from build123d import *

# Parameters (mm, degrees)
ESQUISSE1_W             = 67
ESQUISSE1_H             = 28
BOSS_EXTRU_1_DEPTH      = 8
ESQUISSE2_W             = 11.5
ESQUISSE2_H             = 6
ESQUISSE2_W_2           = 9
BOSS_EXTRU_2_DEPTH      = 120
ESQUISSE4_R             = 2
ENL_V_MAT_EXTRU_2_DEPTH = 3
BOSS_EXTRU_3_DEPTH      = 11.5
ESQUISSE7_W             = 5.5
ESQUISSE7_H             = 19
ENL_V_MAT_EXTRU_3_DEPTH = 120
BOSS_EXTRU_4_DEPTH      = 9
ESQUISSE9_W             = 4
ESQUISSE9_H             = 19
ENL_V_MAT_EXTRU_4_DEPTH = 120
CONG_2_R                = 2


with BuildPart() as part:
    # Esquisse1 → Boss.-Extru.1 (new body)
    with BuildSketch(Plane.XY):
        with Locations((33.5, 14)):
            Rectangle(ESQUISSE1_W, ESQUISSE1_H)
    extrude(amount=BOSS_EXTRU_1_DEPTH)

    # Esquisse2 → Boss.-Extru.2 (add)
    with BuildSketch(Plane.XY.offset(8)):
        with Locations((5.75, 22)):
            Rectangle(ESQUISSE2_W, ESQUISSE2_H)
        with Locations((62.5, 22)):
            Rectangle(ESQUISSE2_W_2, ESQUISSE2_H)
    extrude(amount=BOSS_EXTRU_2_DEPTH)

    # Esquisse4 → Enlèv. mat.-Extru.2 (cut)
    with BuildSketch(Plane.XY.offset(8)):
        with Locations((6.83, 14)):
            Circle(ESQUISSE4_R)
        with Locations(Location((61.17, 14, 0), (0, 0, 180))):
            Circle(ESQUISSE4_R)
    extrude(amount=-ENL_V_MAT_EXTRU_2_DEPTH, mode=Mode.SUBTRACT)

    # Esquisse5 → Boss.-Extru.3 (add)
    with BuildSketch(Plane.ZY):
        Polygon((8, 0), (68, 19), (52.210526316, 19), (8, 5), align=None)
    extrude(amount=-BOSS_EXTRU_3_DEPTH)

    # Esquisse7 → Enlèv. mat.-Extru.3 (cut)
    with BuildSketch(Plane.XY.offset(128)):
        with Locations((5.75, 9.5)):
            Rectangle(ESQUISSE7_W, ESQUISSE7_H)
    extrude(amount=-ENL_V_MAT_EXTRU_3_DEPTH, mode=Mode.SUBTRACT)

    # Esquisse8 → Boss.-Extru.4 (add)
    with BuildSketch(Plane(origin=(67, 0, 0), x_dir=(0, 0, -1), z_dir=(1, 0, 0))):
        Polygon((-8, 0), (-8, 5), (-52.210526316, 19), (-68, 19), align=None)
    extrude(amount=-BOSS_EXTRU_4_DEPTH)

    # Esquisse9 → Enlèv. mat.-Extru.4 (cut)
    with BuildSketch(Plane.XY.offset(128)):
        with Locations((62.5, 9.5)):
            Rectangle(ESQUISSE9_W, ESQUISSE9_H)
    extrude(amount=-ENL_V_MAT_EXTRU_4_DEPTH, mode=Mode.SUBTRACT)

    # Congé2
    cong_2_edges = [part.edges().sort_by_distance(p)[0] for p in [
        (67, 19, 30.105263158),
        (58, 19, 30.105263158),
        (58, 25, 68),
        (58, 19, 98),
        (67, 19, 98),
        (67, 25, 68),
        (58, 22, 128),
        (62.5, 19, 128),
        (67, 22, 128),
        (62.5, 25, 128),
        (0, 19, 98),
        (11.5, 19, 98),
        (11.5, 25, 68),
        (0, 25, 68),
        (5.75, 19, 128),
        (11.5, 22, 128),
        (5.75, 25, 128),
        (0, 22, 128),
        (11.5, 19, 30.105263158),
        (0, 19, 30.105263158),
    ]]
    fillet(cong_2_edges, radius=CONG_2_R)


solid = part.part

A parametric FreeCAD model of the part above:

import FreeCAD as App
import Part
import Sketcher


def edges_at(feature, points):
    """Names of the edges that pass closest to the given points."""
    edges = feature.Shape.Edges
    near = lambda p: min(range(len(edges)), key=lambda i: edges[i].distToShape(Part.Vertex(*p))[0])
    return sorted({f"Edge{near(p) + 1}" for p in points})

doc = App.newDocument("Part")
body = doc.addObject("PartDesign::Body", "Body")

# Sketch on XY plane
sketch1 = body.newObject("Sketcher::SketchObject", "Sketch")
sketch1.AttachmentSupport = (doc.getObject("XY_Plane"), [""])
sketch1.MapMode = "FlatFace"
sketch1.addGeometry([
    Part.LineSegment(App.Vector(0, 28, 0), App.Vector(0, 0, 0)),
    Part.LineSegment(App.Vector(0, 0, 0), App.Vector(67, 0, 0)),
    Part.LineSegment(App.Vector(67, 0, 0), App.Vector(67, 28, 0)),
    Part.LineSegment(App.Vector(67, 28, 0), App.Vector(0, 28, 0)),
], False)
sketch1.addConstraint([
    Sketcher.Constraint("Coincident", 0, 2, 1, 1),
    Sketcher.Constraint("Coincident", 1, 2, 2, 1),
    Sketcher.Constraint("Coincident", 2, 2, 3, 1),
    Sketcher.Constraint("Coincident", 3, 2, 0, 1),
    Sketcher.Constraint("Vertical", 0),
    Sketcher.Constraint("Horizontal", 1),
    Sketcher.Constraint("Vertical", 2),
    Sketcher.Constraint("Horizontal", 3),
    Sketcher.Constraint("Coincident", 0, 2, -1, 1),
    Sketcher.Constraint("DistanceX", 1, 1, 1, 2, 67.0),
    Sketcher.Constraint("DistanceY", 0, 2, 0, 1, 28.0),
])
pad1 = body.newObject("PartDesign::Pad", "Pad")
pad1.Profile = sketch1
pad1.Length = 8

# Sketch on XY plane
sketch2 = body.newObject("Sketcher::SketchObject", "Sketch001")
sketch2.AttachmentSupport = (doc.getObject("XY_Plane"), [""])
sketch2.MapMode = "FlatFace"
sketch2.AttachmentOffset = App.Placement(App.Vector(0, 0, 8), App.Rotation())
sketch2.addGeometry([
    Part.LineSegment(App.Vector(0, 25, 0), App.Vector(0, 19, 0)),  # 0
    Part.LineSegment(App.Vector(0, 19, 0), App.Vector(12, 19, 0)),  # 1
    Part.LineSegment(App.Vector(12, 19, 0), App.Vector(12, 25, 0)),  # 2
    Part.LineSegment(App.Vector(12, 25, 0), App.Vector(0, 25, 0)),  # 3
    Part.LineSegment(App.Vector(58, 25, 0), App.Vector(58, 19, 0)),  # 4
    Part.LineSegment(App.Vector(58, 19, 0), App.Vector(67, 19, 0)),  # 5
    Part.LineSegment(App.Vector(67, 19, 0), App.Vector(67, 25, 0)),  # 6
    Part.LineSegment(App.Vector(67, 25, 0), App.Vector(58, 25, 0)),  # 7
], False)
sketch2.addConstraint([
    Sketcher.Constraint("Coincident", 0, 2, 1, 1),
    Sketcher.Constraint("Coincident", 1, 2, 2, 1),
    Sketcher.Constraint("Coincident", 2, 2, 3, 1),
    Sketcher.Constraint("Coincident", 3, 2, 0, 1),
    Sketcher.Constraint("Coincident", 4, 2, 5, 1),
    Sketcher.Constraint("Coincident", 5, 2, 6, 1),
    Sketcher.Constraint("Coincident", 6, 2, 7, 1),
    Sketcher.Constraint("Coincident", 7, 2, 4, 1),
    Sketcher.Constraint("Vertical", 0),
    Sketcher.Constraint("Horizontal", 1),
    Sketcher.Constraint("Vertical", 2),
    Sketcher.Constraint("Horizontal", 3),
    Sketcher.Constraint("Vertical", 4),
    Sketcher.Constraint("Horizontal", 5),
    Sketcher.Constraint("Vertical", 6),
    Sketcher.Constraint("Horizontal", 7),
    Sketcher.Constraint("PointOnObject", 0, 2, -2),
    Sketcher.Constraint("Horizontal", 1, 2, 4, 2),
    Sketcher.Constraint("Horizontal", 3, 2, 6, 2),
    Sketcher.Constraint("DistanceX", 5, 1, 5, 2, 9.0),
    Sketcher.Constraint("DistanceY", 0, 2, 0, 1, 6.0),
    Sketcher.Constraint("DistanceX", 1, 1, 1, 2, 11.5),
    Sketcher.Constraint("DistanceY", -1, 1, 0, 2, 19.0),
    Sketcher.Constraint("DistanceX", -1, 1, 4, 2, 58.0),
])
pad2 = body.newObject("PartDesign::Pad", "Pad001")
pad2.Profile = sketch2
pad2.Length = 120

# Sketch on XY plane
sketch3 = body.newObject("Sketcher::SketchObject", "Sketch002")
sketch3.AttachmentSupport = (doc.getObject("XY_Plane"), [""])
sketch3.MapMode = "FlatFace"
sketch3.AttachmentOffset = App.Placement(App.Vector(0, 0, 8), App.Rotation())
sketch3.addGeometry([
    Part.Circle(App.Vector(6.8, 14, 0), App.Vector(0, 0, 1), 2),
    Part.Circle(App.Vector(61.2, 14, 0), App.Vector(0, 0, 1), 2),
], False)
sketch3.addConstraint([
    Sketcher.Constraint("Equal", 0, 1),
    Sketcher.Constraint("Horizontal", 0, 3, 1, 3),
    Sketcher.Constraint("Diameter", 0, 4.0),
    Sketcher.Constraint("DistanceY", -1, 1, 0, 3, 14.0),
    Sketcher.Constraint("DistanceX", -1, 1, 0, 3, 6.83),
    Sketcher.Constraint("DistanceX", -1, 1, 1, 3, 61.17),
])
pocket1 = body.newObject("PartDesign::Pocket", "Pocket")
pocket1.Profile = sketch3
pocket1.Length = 3

# Sketch on YZ plane
sketch4 = body.newObject("Sketcher::SketchObject", "Sketch003")
sketch4.AttachmentSupport = (doc.getObject("YZ_Plane"), [""])
sketch4.MapMode = "FlatFace"
sketch4.addGeometry([
    Part.LineSegment(App.Vector(0, 8, 0), App.Vector(19, 68, 0)),
    Part.LineSegment(App.Vector(19, 68, 0), App.Vector(19, 52, 0)),
    Part.LineSegment(App.Vector(19, 52, 0), App.Vector(5, 8, 0)),
    Part.LineSegment(App.Vector(5, 8, 0), App.Vector(0, 8, 0)),
], False)
sketch4.addConstraint([
    Sketcher.Constraint("Coincident", 0, 2, 1, 1),
    Sketcher.Constraint("Coincident", 1, 2, 2, 1),
    Sketcher.Constraint("Coincident", 2, 2, 3, 1),
    Sketcher.Constraint("Coincident", 3, 2, 0, 1),
    Sketcher.Constraint("Vertical", 1),
    Sketcher.Constraint("Horizontal", 3),
    Sketcher.Constraint("PointOnObject", 3, 2, -2),
    Sketcher.Constraint("Parallel", 0, 2),
    Sketcher.Constraint("DistanceX", 3, 2, 3, 1, 5.0),
    Sketcher.Constraint("DistanceX", -1, 1, 0, 2, 19.0),
    Sketcher.Constraint("DistanceY", -1, 1, 0, 2, 68.0),
    Sketcher.Constraint("DistanceY", -1, 1, 2, 2, 8.0),
])
pad3 = body.newObject("PartDesign::Pad", "Pad002")
pad3.Profile = sketch4
pad3.Length = 11.5

# Sketch on XY plane
sketch5 = body.newObject("Sketcher::SketchObject", "Sketch004")
sketch5.AttachmentSupport = (doc.getObject("XY_Plane"), [""])
sketch5.MapMode = "FlatFace"
sketch5.AttachmentOffset = App.Placement(App.Vector(0, 0, 128), App.Rotation())
sketch5.addGeometry([
    Part.LineSegment(App.Vector(3, 19, 0), App.Vector(3, 0, 0)),
    Part.LineSegment(App.Vector(3, 0, 0), App.Vector(8, 0, 0)),
    Part.LineSegment(App.Vector(8, 0, 0), App.Vector(8, 19, 0)),
    Part.LineSegment(App.Vector(8, 19, 0), App.Vector(3, 19, 0)),
], False)
sketch5.addConstraint([
    Sketcher.Constraint("Coincident", 0, 2, 1, 1),
    Sketcher.Constraint("Coincident", 1, 2, 2, 1),
    Sketcher.Constraint("Coincident", 2, 2, 3, 1),
    Sketcher.Constraint("Coincident", 3, 2, 0, 1),
    Sketcher.Constraint("Vertical", 0),
    Sketcher.Constraint("Horizontal", 1),
    Sketcher.Constraint("Vertical", 2),
    Sketcher.Constraint("Horizontal", 3),
    Sketcher.Constraint("PointOnObject", 0, 2, -1),
    Sketcher.Constraint("DistanceY", 0, 2, 0, 1, 19.0),
    Sketcher.Constraint("DistanceX", 1, 1, 1, 2, 5.5),
    Sketcher.Constraint("DistanceX", -1, 1, 0, 2, 3.0),
])
pocket2 = body.newObject("PartDesign::Pocket", "Pocket001")
pocket2.Profile = sketch5
pocket2.Length = 120

# Sketch on YZ plane
sketch6 = body.newObject("Sketcher::SketchObject", "Sketch005")
sketch6.AttachmentSupport = (doc.getObject("YZ_Plane"), [""])
sketch6.MapMode = "FlatFace"
sketch6.AttachmentOffset = App.Placement(App.Vector(0, 0, 67), App.Rotation())
sketch6.addGeometry([
    Part.LineSegment(App.Vector(0, 8, 0), App.Vector(5, 8, 0)),
    Part.LineSegment(App.Vector(5, 8, 0), App.Vector(19, 52, 0)),
    Part.LineSegment(App.Vector(19, 52, 0), App.Vector(19, 68, 0)),
    Part.LineSegment(App.Vector(19, 68, 0), App.Vector(0, 8, 0)),
], False)
sketch6.addConstraint([
    Sketcher.Constraint("Coincident", 0, 2, 1, 1),
    Sketcher.Constraint("Coincident", 1, 2, 2, 1),
    Sketcher.Constraint("Coincident", 2, 2, 3, 1),
    Sketcher.Constraint("Coincident", 3, 2, 0, 1),
    Sketcher.Constraint("Horizontal", 0),
    Sketcher.Constraint("Vertical", 2),
    Sketcher.Constraint("PointOnObject", 3, 2, -2),
    Sketcher.Constraint("Parallel", 1, 3),
    Sketcher.Constraint("DistanceX", 0, 1, 0, 2, 5.0),
    Sketcher.Constraint("DistanceY", -1, 1, 0, 2, 8.0),
    Sketcher.Constraint("DistanceX", -1, 1, 1, 2, 19.0),
    Sketcher.Constraint("DistanceY", -1, 1, 2, 2, 68.0),
])
pad4 = body.newObject("PartDesign::Pad", "Pad003")
pad4.Profile = sketch6
pad4.Length = 9
pad4.Reversed = True

# Sketch on XY plane
sketch7 = body.newObject("Sketcher::SketchObject", "Sketch006")
sketch7.AttachmentSupport = (doc.getObject("XY_Plane"), [""])
sketch7.MapMode = "FlatFace"
sketch7.AttachmentOffset = App.Placement(App.Vector(0, 0, 128), App.Rotation())
sketch7.addGeometry([
    Part.LineSegment(App.Vector(60.5, 19, 0), App.Vector(60.5, 0, 0)),
    Part.LineSegment(App.Vector(60.5, 0, 0), App.Vector(64.5, 0, 0)),
    Part.LineSegment(App.Vector(64.5, 0, 0), App.Vector(64.5, 19, 0)),
    Part.LineSegment(App.Vector(64.5, 19, 0), App.Vector(60.5, 19, 0)),
], False)
sketch7.addConstraint([
    Sketcher.Constraint("Coincident", 0, 2, 1, 1),
    Sketcher.Constraint("Coincident", 1, 2, 2, 1),
    Sketcher.Constraint("Coincident", 2, 2, 3, 1),
    Sketcher.Constraint("Coincident", 3, 2, 0, 1),
    Sketcher.Constraint("Vertical", 0),
    Sketcher.Constraint("Horizontal", 1),
    Sketcher.Constraint("Vertical", 2),
    Sketcher.Constraint("Horizontal", 3),
    Sketcher.Constraint("PointOnObject", 0, 2, -1),
    Sketcher.Constraint("DistanceX", 1, 1, 1, 2, 4.0),
    Sketcher.Constraint("DistanceY", 0, 2, 0, 1, 19.0),
    Sketcher.Constraint("DistanceX", -1, 1, 0, 2, 60.5),
])
pocket3 = body.newObject("PartDesign::Pocket", "Pocket002")
pocket3.Profile = sketch7
pocket3.Length = 120
doc.recompute()

fillet = body.newObject("PartDesign::Fillet", "Fillet")
fillet.Base = (pocket3, edges_at(pocket3, [
    (67, 19, 30.105),
    (58, 19, 30.105),
    (58, 25, 68),
    (58, 19, 98),
    (67, 19, 98),
    (67, 25, 68),
    (58, 22, 128),
    (62.5, 19, 128),
    (67, 22, 128),
    (62.5, 25, 128),
    (0, 19, 98),
    (11.5, 19, 98),
    (11.5, 25, 68),
    (0, 25, 68),
    (5.75, 19, 128),
    (11.5, 22, 128),
    (5.75, 25, 128),
    (0, 22, 128),
    (11.5, 19, 30.105),
    (0, 19, 30.105),
]))
fillet.Radius = 2

doc.recompute()
